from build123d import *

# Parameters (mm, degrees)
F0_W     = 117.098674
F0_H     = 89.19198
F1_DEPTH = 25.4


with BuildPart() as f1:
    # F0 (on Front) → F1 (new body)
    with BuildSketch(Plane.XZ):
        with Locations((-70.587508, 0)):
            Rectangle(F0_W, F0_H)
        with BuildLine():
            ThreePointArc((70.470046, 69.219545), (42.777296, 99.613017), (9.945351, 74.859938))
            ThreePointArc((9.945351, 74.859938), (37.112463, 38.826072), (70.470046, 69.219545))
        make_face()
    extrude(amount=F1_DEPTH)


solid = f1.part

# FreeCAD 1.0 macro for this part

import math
import FreeCAD as App
import Part
import Sketcher
from FreeCAD import Vector
Q = App.Units.Quantity

doc = App.newDocument("Part")
body = doc.addObject("PartDesign::Body", "Body")
body.AllowCompound = True

# Sketch on XZ plane
sketch1 = doc.addObject("Sketcher::SketchObject", "Sketch")
body.addObject(sketch1)
sketch1.AttachmentSupport = (doc.XZ_Plane, [""])
sketch1.MapMode = "FlatFace"
sketch1.addGeometry(Part.LineSegment(Vector(-129.136845, 44.59599, 0), Vector(-129.136845, -44.59599, 0)), False)
sketch1.addGeometry(Part.LineSegment(Vector(-129.136845, -44.59599, 0), Vector(-12.038171, -44.59599, 0)), False)
sketch1.addGeometry(Part.LineSegment(Vector(-12.038171, -44.59599, 0), Vector(-12.038171, 44.59599, 0)), False)
sketch1.addGeometry(Part.LineSegment(Vector(-12.038171, 44.59599, 0), Vector(-129.136845, 44.59599, 0)), False)
sketch1.addGeometry(Part.ArcOfCircle(Part.Circle(Vector(39.94488, 69.219544, 0), Vector(0, 0, 1), 30.525166), math.radians(0.000002), math.radians(169.351782)), False)
sketch1.addGeometry(Part.ArcOfCircle(Part.Circle(Vector(39.94488, 69.219545, 0), Vector(0, 0, 1), 30.525166), math.radians(169.351783), math.radians(360.000001)), False)
sketch1.addConstraint(Sketcher.Constraint("Coincident", 0, 2, 1, 1))
sketch1.addConstraint(Sketcher.Constraint("Coincident", 1, 2, 2, 1))
sketch1.addConstraint(Sketcher.Constraint("Coincident", 2, 2, 3, 1))
sketch1.addConstraint(Sketcher.Constraint("Coincident", 3, 2, 0, 1))
sketch1.addConstraint(Sketcher.Constraint("Tangent", 4, 1, 5, 2))
sketch1.addConstraint(Sketcher.Constraint("Coincident", 5, 1, 4, 2))
sketch1.addConstraint(Sketcher.Constraint("Vertical", 0))
sketch1.addConstraint(Sketcher.Constraint("Horizontal", 1))
sketch1.addConstraint(Sketcher.Constraint("Vertical", 2))
sketch1.addConstraint(Sketcher.Constraint("Horizontal", 3))
sketch1.addConstraint(Sketcher.Constraint("Horizontal", 5, 3, 4, 1))
sketch1.addConstraint(Sketcher.Constraint("Radius", 4, 30.525166))
sketch1.addConstraint(Sketcher.Constraint("DistanceY", 0, 2, 0, 1, 89.19198))
sketch1.addConstraint(Sketcher.Constraint("DistanceX", 1, 1, 1, 2, 117.098674))
sketch1.addConstraint(Sketcher.Constraint("DistanceX", -1, 1, 4, 3, 39.94488))
sketch1.addConstraint(Sketcher.Constraint("DistanceY", 0, 2, -1, 1, 44.59599))
sketch1.addConstraint(Sketcher.Constraint("DistanceX", 1, 2, -1, 1, 12.038171))
sketch1.addConstraint(Sketcher.Constraint("DistanceX", -1, 1, 5, 1, 9.945351))
sketch1.addConstraint(Sketcher.Constraint("DistanceY", -1, 1, 4, 3, 69.219544))
pad1 = doc.addObject("PartDesign::Pad", "Pad")
body.addObject(pad1)
pad1.Profile = sketch1
pad1.Length = Q("1 in")

doc.recompute()
